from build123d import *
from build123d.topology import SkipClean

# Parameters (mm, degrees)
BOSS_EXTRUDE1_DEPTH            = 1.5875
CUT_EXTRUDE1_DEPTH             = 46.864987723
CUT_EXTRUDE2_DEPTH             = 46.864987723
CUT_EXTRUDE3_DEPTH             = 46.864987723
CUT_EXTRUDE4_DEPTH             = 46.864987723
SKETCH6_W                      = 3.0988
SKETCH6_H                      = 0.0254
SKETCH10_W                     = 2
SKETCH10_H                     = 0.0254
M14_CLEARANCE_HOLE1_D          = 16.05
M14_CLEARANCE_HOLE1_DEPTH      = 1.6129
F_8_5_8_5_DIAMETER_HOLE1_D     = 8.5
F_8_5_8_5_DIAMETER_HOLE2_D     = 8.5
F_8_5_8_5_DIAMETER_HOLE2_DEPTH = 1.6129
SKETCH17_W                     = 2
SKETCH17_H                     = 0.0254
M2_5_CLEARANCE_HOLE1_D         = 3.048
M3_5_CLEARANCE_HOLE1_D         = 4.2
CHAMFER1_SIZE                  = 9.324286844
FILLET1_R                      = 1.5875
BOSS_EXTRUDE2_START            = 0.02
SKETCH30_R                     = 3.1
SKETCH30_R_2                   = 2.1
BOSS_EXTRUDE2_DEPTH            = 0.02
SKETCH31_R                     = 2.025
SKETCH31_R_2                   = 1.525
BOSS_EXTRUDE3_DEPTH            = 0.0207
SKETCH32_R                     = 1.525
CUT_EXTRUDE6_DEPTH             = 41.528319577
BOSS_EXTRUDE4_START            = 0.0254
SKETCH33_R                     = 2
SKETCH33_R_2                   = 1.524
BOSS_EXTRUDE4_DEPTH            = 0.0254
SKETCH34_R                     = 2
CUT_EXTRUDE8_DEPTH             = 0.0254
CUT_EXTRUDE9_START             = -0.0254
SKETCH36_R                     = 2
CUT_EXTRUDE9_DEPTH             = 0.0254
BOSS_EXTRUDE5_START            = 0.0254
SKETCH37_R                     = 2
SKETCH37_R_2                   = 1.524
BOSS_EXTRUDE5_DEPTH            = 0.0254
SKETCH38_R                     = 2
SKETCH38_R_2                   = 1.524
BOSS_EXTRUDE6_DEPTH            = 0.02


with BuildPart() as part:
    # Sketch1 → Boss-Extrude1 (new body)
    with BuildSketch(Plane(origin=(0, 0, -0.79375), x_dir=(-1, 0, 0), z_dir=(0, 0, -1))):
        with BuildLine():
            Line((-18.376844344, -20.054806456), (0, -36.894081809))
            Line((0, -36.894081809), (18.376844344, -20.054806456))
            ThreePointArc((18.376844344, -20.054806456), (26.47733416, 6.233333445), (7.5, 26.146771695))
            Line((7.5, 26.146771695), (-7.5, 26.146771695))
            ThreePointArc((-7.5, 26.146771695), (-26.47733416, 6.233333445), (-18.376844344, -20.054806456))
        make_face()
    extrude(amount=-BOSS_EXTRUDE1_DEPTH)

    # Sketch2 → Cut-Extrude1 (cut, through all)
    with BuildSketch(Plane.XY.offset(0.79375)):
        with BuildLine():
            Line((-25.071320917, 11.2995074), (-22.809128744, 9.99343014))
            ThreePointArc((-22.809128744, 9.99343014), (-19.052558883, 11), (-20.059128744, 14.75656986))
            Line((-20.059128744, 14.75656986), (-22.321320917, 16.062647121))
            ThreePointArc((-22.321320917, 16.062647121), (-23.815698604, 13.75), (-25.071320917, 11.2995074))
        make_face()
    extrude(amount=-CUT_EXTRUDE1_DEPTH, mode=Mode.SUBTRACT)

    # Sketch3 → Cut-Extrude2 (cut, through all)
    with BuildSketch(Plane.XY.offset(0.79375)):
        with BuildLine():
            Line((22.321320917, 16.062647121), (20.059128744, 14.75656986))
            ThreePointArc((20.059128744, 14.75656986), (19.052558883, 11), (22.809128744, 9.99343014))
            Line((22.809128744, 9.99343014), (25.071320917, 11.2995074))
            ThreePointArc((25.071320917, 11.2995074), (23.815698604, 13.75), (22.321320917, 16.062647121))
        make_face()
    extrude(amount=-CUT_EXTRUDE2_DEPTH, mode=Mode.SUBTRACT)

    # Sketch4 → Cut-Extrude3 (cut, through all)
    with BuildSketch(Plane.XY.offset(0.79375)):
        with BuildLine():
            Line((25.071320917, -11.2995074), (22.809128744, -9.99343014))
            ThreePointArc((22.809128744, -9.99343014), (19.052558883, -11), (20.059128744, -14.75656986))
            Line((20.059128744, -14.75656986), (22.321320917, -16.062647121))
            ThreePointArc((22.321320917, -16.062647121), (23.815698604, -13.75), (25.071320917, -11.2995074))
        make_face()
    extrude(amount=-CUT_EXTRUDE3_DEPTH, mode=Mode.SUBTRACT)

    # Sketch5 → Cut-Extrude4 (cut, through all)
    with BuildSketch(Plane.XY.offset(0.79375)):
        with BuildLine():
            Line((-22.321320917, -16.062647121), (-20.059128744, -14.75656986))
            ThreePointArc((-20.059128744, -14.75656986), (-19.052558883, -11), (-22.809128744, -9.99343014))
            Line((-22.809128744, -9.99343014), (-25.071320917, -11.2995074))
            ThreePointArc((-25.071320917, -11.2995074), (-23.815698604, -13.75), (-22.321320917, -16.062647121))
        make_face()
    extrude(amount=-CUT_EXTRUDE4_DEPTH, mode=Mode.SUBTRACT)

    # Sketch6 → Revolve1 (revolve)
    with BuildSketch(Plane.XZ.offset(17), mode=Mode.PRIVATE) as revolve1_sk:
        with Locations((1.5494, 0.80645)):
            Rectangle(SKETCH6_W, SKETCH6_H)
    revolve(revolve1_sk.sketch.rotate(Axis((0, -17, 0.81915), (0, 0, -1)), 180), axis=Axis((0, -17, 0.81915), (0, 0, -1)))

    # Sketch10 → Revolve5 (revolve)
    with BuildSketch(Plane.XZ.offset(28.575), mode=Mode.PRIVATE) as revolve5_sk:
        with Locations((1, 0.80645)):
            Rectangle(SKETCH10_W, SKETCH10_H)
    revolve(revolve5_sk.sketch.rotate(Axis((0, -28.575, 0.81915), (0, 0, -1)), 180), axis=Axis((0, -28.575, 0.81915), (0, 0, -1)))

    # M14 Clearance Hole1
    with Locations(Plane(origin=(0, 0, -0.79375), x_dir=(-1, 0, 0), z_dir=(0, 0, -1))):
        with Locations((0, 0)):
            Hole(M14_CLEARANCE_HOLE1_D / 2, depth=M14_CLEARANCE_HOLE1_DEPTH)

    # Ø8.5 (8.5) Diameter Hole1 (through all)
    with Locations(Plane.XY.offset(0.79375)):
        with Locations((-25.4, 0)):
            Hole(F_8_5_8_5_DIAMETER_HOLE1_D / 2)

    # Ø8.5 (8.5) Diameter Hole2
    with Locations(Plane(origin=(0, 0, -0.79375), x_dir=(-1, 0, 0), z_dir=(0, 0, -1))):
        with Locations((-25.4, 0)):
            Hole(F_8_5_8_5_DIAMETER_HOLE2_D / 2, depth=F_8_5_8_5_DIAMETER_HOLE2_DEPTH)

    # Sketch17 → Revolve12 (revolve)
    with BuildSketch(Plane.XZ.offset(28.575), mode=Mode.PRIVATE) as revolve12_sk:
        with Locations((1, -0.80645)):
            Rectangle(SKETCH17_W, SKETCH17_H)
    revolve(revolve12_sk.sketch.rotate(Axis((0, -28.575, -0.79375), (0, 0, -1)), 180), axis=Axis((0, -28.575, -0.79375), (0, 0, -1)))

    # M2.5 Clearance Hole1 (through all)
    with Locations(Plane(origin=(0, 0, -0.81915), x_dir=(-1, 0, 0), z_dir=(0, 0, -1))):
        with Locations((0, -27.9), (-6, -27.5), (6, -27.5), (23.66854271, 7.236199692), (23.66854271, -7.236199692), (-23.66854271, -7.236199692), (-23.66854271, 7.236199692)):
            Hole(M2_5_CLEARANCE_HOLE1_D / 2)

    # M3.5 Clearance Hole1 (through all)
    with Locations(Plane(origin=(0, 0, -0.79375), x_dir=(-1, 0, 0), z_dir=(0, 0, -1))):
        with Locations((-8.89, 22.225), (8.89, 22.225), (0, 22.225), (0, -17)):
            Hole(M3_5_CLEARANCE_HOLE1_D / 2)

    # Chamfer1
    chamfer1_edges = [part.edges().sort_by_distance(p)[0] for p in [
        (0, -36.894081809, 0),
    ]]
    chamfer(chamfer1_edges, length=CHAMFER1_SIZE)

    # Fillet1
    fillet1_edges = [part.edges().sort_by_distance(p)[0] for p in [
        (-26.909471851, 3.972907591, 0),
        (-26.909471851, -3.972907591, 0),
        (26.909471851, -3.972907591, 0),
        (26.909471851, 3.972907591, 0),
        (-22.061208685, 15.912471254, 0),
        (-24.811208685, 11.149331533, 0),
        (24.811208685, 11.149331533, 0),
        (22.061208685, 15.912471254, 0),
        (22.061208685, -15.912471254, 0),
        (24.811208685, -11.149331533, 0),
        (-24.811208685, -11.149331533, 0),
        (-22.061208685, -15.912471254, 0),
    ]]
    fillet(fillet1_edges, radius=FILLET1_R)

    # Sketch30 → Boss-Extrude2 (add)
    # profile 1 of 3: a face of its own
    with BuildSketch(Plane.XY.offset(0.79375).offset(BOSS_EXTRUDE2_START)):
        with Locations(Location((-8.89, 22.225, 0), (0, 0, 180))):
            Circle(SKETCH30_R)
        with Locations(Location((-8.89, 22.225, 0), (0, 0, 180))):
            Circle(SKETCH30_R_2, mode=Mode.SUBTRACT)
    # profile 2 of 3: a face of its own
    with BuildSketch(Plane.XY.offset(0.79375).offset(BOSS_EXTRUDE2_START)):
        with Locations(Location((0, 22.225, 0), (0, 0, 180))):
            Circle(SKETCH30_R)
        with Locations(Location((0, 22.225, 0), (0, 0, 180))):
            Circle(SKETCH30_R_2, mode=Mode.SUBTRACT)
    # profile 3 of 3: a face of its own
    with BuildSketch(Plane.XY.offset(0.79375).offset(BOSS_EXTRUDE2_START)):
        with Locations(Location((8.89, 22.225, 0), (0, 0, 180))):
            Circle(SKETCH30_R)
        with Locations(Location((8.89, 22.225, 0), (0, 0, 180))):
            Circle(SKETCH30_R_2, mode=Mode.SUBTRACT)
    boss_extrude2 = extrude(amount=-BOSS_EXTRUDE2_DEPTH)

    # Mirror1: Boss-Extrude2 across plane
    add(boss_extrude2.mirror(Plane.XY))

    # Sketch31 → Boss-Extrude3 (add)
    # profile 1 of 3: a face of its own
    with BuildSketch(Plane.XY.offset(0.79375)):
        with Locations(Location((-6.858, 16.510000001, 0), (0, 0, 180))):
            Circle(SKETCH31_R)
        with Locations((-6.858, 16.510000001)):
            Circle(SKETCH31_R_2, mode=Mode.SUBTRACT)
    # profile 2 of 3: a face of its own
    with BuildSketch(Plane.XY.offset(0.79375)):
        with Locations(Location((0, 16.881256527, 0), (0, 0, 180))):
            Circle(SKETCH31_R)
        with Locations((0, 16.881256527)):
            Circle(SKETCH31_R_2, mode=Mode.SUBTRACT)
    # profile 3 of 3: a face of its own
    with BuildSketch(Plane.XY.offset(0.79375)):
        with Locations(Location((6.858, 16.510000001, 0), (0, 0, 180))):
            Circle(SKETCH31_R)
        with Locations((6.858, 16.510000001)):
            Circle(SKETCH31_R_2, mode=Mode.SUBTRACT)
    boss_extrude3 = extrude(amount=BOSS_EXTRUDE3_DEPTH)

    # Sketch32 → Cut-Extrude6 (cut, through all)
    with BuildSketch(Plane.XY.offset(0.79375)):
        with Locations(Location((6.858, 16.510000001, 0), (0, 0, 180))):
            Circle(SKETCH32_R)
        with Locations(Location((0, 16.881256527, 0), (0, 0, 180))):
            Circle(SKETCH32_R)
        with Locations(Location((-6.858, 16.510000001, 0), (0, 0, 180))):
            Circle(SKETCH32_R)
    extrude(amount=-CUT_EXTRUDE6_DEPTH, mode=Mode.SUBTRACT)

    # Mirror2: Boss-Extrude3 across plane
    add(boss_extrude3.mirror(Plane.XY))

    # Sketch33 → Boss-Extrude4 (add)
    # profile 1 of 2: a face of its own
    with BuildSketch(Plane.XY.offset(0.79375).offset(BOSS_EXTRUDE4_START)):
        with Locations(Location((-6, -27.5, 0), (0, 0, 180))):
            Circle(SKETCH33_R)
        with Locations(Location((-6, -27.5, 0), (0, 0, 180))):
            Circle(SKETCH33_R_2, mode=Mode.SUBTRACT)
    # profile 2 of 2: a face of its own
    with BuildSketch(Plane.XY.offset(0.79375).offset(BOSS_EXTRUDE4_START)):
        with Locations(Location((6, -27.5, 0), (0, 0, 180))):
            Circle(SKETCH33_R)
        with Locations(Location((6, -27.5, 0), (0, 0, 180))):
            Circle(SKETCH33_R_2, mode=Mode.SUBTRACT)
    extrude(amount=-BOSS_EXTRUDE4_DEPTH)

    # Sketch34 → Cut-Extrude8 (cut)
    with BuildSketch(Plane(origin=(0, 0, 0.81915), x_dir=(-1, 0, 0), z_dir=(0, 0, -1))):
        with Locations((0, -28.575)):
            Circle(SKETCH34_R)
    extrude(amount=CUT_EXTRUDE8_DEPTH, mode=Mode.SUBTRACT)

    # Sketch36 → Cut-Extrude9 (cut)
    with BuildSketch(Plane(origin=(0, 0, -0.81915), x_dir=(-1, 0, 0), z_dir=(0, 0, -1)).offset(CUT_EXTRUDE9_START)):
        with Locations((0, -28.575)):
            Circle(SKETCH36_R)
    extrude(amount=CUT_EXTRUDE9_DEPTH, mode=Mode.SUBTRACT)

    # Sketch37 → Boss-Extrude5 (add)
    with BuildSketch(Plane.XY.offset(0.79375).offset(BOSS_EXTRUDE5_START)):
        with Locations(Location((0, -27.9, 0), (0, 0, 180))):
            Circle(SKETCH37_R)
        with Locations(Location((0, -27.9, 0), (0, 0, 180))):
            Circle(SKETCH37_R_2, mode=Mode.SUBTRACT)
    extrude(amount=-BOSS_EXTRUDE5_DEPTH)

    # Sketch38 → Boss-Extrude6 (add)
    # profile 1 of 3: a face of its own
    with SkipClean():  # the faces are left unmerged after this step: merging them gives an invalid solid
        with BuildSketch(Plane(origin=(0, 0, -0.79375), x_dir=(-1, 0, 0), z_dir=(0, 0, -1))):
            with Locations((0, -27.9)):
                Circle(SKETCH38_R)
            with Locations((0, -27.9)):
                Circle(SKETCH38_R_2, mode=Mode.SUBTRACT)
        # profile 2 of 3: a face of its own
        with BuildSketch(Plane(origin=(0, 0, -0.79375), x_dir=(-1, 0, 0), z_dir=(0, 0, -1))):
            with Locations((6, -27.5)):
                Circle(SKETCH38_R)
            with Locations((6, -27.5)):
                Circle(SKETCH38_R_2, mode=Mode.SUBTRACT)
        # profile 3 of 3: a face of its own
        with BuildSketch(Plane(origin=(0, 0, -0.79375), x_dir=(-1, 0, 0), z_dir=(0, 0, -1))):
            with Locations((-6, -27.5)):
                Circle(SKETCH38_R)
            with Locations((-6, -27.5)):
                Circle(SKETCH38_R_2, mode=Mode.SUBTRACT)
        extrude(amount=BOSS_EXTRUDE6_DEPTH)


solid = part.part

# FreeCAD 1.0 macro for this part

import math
import FreeCAD as App
import Part
import Sketcher
from FreeCAD import Vector
Q = App.Units.Quantity


def edges_at(feature, points):
    """Names of the edges that pass closest to the given points."""
    edges = feature.Shape.Edges
    near = lambda p: min(range(len(edges)), key=lambda i: edges[i].distToShape(Part.Vertex(*p))[0])
    return sorted({f"Edge{near(p) + 1}" for p in points})


def add_polygon(sketch, points):
    """Adds a closed chain of lines whose ends are joined by coincident constraints."""
    first, n = sketch.GeometryCount, len(points)
    for a, b in zip(points, points[1:] + points[:1]):
        sketch.addGeometry(Part.LineSegment(App.Vector(*a, 0), App.Vector(*b, 0)), False)
    for i in range(n):
        sketch.addConstraint(Sketcher.Constraint("Coincident", first + i, 2, first + (i + 1) % n, 1))

doc = App.newDocument("Part")
body = doc.addObject("PartDesign::Body", "Body")

# Sketch on XY plane
sketch1 = body.newObject("Sketcher::SketchObject", "Sketch")
sketch1.AttachmentSupport = (doc.getObject("XY_Plane"), [""])
sketch1.MapMode = "FlatFace"
sketch1.AttachmentOffset = App.Placement(Vector(0, 0, -0.79375), App.Rotation())
sketch1.addGeometry(Part.LineSegment(Vector(18, -20, 0), Vector(0, -37, 0)), False)
sketch1.addGeometry(Part.LineSegment(Vector(0, -37, 0), Vector(-18, -20, 0)), False)
sketch1.addGeometry(Part.ArcOfCircle(Part.Circle(Vector(0, 0, 0), Vector(0, 0, 1), 27), math.radians(106), math.radians(228)), False)
sketch1.addGeometry(Part.LineSegment(Vector(-8, 26, 0), Vector(8, 26, 0)), False)
sketch1.addGeometry(Part.ArcOfCircle(Part.Circle(Vector(0, 0, 0), Vector(0, 0, 1), 27), math.radians(-48), math.radians(74)), False)
sketch1.addConstraint(Sketcher.Constraint("Coincident", 0, 2, 1, 1))
sketch1.addConstraint(Sketcher.Constraint("Tangent", 1, 2, 2, 2))
sketch1.addConstraint(Sketcher.Constraint("Coincident", 2, 1, 3, 1))
sketch1.addConstraint(Sketcher.Constraint("Coincident", 3, 2, 4, 2))
sketch1.addConstraint(Sketcher.Constraint("Tangent", 4, 1, 0, 1))
sketch1.addConstraint(Sketcher.Constraint("Horizontal", 3))
sketch1.addConstraint(Sketcher.Constraint("Coincident", 2, 3, -1, 1))
sketch1.addConstraint(Sketcher.Constraint("Coincident", 4, 3, -1, 1))
sketch1.addConstraint(Sketcher.Constraint("Equal", 2, 4))
sketch1.addConstraint(Sketcher.Constraint("PointOnObject", 0, 2, -2))
sketch1.addConstraint(Sketcher.Constraint("DistanceX", 3, 1, 3, 2, 15.0))
sketch1.addConstraint(Sketcher.Constraint("Angle", 0, Q("-137.5 deg")))
sketch1.addConstraint(Sketcher.Constraint("Radius", 2, 27.20117))
pad1 = body.newObject("PartDesign::Pad", "Pad")
pad1.Profile = sketch1
pad1.Length = 1.5875

# Sketch on XY plane
sketch2 = body.newObject("Sketcher::SketchObject", "Sketch001")
sketch2.AttachmentSupport = (doc.getObject("XY_Plane"), [""])
sketch2.MapMode = "FlatFace"
sketch2.AttachmentOffset = App.Placement(Vector(0, 0, 0.79375), App.Rotation())
sketch2.addGeometry(Part.LineSegment(Vector(-25.1, 11.3, 0), Vector(-22.8, 10, 0)), False)
sketch2.addGeometry(Part.ArcOfCircle(Part.Circle(Vector(-21.4, 12.4, 0), Vector(0, 0, 1), 2.8), math.radians(-120), math.radians(60)), False)
sketch2.addGeometry(Part.LineSegment(Vector(-20.1, 14.8, 0), Vector(-22.3, 16.1, 0)), False)
sketch2.addGeometry(Part.ArcOfCircle(Part.Circle(Vector(0, 0, 0), Vector(0, 0, 1), 27.5), math.radians(144.26), math.radians(155.74)), False)
sketch2.addConstraint(Sketcher.Constraint("Tangent", 0, 2, 1, 1))
sketch2.addConstraint(Sketcher.Constraint("Tangent", 1, 2, 2, 1))
sketch2.addConstraint(Sketcher.Constraint("Coincident", 2, 2, 3, 1))
sketch2.addConstraint(Sketcher.Constraint("Coincident", 3, 2, 0, 1))
sketch2.addConstraint(Sketcher.Constraint("Coincident", 3, 3, -1, 1))
sketch2.addConstraint(Sketcher.Constraint("Parallel", 0, 2))
sketch2.addConstraint(Sketcher.Constraint("Equal", 0, 2))
sketch2.addConstraint(Sketcher.Constraint("Radius", 3, 27.5))
sketch2.addConstraint(Sketcher.Constraint("Angle", 0, Q("-30 deg")))
sketch2.addConstraint(Sketcher.Constraint("Radius", 1, 2.75))
sketch2.addConstraint(Sketcher.Constraint("DistanceY", -1, 1, 1, 3, 12.375))
pocket1 = body.newObject("PartDesign::Pocket", "Pocket")
pocket1.Profile = sketch2
pocket1.Type = "ThroughAll"

# Sketch on XY plane
sketch3 = body.newObject("Sketcher::SketchObject", "Sketch002")
sketch3.AttachmentSupport = (doc.getObject("XY_Plane"), [""])
sketch3.MapMode = "FlatFace"
sketch3.AttachmentOffset = App.Placement(Vector(0, 0, 0.79375), App.Rotation())
sketch3.addGeometry(Part.LineSegment(Vector(22.3, 16.1, 0), Vector(20.1, 14.8, 0)), False)
sketch3.addGeometry(Part.ArcOfCircle(Part.Circle(Vector(21.4, 12.4, 0), Vector(0, 0, 1), 2.8), math.radians(120), math.radians(300)), False)
sketch3.addGeometry(Part.LineSegment(Vector(22.8, 10, 0), Vector(25.1, 11.3, 0)), False)
sketch3.addGeometry(Part.ArcOfCircle(Part.Circle(Vector(0, 0, 0), Vector(0, 0, 1), 27.5), math.radians(24.26), math.radians(35.74)), False)
sketch3.addConstraint(Sketcher.Constraint("Tangent", 0, 2, 1, 1))
sketch3.addConstraint(Sketcher.Constraint("Tangent", 1, 2, 2, 1))
sketch3.addConstraint(Sketcher.Constraint("Coincident", 2, 2, 3, 1))
sketch3.addConstraint(Sketcher.Constraint("Coincident", 3, 2, 0, 1))
sketch3.addConstraint(Sketcher.Constraint("Coincident", 3, 3, -1, 1))
sketch3.addConstraint(Sketcher.Constraint("Parallel", 0, 2))
sketch3.addConstraint(Sketcher.Constraint("Equal", 0, 2))
sketch3.addConstraint(Sketcher.Constraint("Radius", 3, 27.5))
sketch3.addConstraint(Sketcher.Constraint("Angle", 0, Q("-150 deg")))
sketch3.addConstraint(Sketcher.Constraint("Radius", 1, 2.75))
sketch3.addConstraint(Sketcher.Constraint("DistanceY", -1, 1, 1, 3, 12.375))
pocket2 = body.newObject("PartDesign::Pocket", "Pocket001")
pocket2.Profile = sketch3
pocket2.Type = "ThroughAll"

# Sketch on XY plane
sketch4 = body.newObject("Sketcher::SketchObject", "Sketch003")
sketch4.AttachmentSupport = (doc.getObject("XY_Plane"), [""])
sketch4.MapMode = "FlatFace"
sketch4.AttachmentOffset = App.Placement(Vector(0, 0, 0.79375), App.Rotation())
sketch4.addGeometry(Part.LineSegment(Vector(25.1, -11.3, 0), Vector(22.8, -10, 0)), False)
sketch4.addGeometry(Part.ArcOfCircle(Part.Circle(Vector(21.4, -12.4, 0), Vector(0, 0, 1), 2.8), math.radians(60), math.radians(240)), False)
sketch4.addGeometry(Part.LineSegment(Vector(20.1, -14.8, 0), Vector(22.3, -16.1, 0)), False)
sketch4.addGeometry(Part.ArcOfCircle(Part.Circle(Vector(0, 0, 0), Vector(0, 0, 1), 27.5), math.radians(-35.74), math.radians(-24.26)), False)
sketch4.addConstraint(Sketcher.Constraint("Tangent", 0, 2, 1, 1))
sketch4.addConstraint(Sketcher.Constraint("Tangent", 1, 2, 2, 1))
sketch4.addConstraint(Sketcher.Constraint("Coincident", 2, 2, 3, 1))
sketch4.addConstraint(Sketcher.Constraint("Coincident", 3, 2, 0, 1))
sketch4.addConstraint(Sketcher.Constraint("Coincident", 3, 3, -1, 1))
sketch4.addConstraint(Sketcher.Constraint("Parallel", 0, 2))
sketch4.addConstraint(Sketcher.Constraint("Equal", 0, 2))
sketch4.addConstraint(Sketcher.Constraint("Radius", 3, 27.5))
sketch4.addConstraint(Sketcher.Constraint("Angle", 0, Q("150 deg")))
sketch4.addConstraint(Sketcher.Constraint("Radius", 1, 2.75))
sketch4.addConstraint(Sketcher.Constraint("DistanceY", 1, 3, -1, 1, 12.375))
pocket3 = body.newObject("PartDesign::Pocket", "Pocket002")
pocket3.Profile = sketch4
pocket3.Type = "ThroughAll"

# Sketch on XY plane
sketch5 = body.newObject("Sketcher::SketchObject", "Sketch004")
sketch5.AttachmentSupport = (doc.getObject("XY_Plane"), [""])
sketch5.MapMode = "FlatFace"
sketch5.AttachmentOffset = App.Placement(Vector(0, 0, 0.79375), App.Rotation())
sketch5.addGeometry(Part.LineSegment(Vector(-22.3, -16.1, 0), Vector(-20.1, -14.8, 0)), False)
sketch5.addGeometry(Part.ArcOfCircle(Part.Circle(Vector(-21.4, -12.4, 0), Vector(0, 0, 1), 2.8), math.radians(-60), math.radians(120)), False)
sketch5.addGeometry(Part.LineSegment(Vector(-22.8, -10, 0), Vector(-25.1, -11.3, 0)), False)
sketch5.addGeometry(Part.ArcOfCircle(Part.Circle(Vector(0, 0, 0), Vector(0, 0, 1), 27.5), math.radians(-155.74), math.radians(-144.26)), False)
sketch5.addConstraint(Sketcher.Constraint("Tangent", 0, 2, 1, 1))
sketch5.addConstraint(Sketcher.Constraint("Tangent", 1, 2, 2, 1))
sketch5.addConstraint(Sketcher.Constraint("Coincident", 2, 2, 3, 1))
sketch5.addConstraint(Sketcher.Constraint("Coincident", 3, 2, 0, 1))
sketch5.addConstraint(Sketcher.Constraint("Coincident", 3, 3, -1, 1))
sketch5.addConstraint(Sketcher.Constraint("Parallel", 0, 2))
sketch5.addConstraint(Sketcher.Constraint("Equal", 0, 2))
sketch5.addConstraint(Sketcher.Constraint("Radius", 3, 27.5))
sketch5.addConstraint(Sketcher.Constraint("Angle", 0, Q("30 deg")))
sketch5.addConstraint(Sketcher.Constraint("Radius", 1, 2.75))
sketch5.addConstraint(Sketcher.Constraint("DistanceY", 1, 3, -1, 1, 12.375))
pocket4 = body.newObject("PartDesign::Pocket", "Pocket003")
pocket4.Profile = sketch5
pocket4.Type = "ThroughAll"

# Sketch on XZ plane
sketch6 = body.newObject("Sketcher::SketchObject", "Sketch005")
sketch6.AttachmentSupport = (doc.getObject("XZ_Plane"), [""])
sketch6.MapMode = "FlatFace"
sketch6.AttachmentOffset = App.Placement(Vector(0, 0, 17), App.Rotation())
add_polygon(sketch6, [(0, 0.819), (0, 0.794), (3.099, 0.794), (3.099, 0.819)])  # lines 0-3
sketch6.addConstraint(Sketcher.Constraint("Vertical", 0))
sketch6.addConstraint(Sketcher.Constraint("Horizontal", 1))
sketch6.addConstraint(Sketcher.Constraint("Vertical", 2))
sketch6.addConstraint(Sketcher.Constraint("Horizontal", 3))
sketch6.addConstraint(Sketcher.Constraint("PointOnObject", 0, 2, -2))
sketch6.addConstraint(Sketcher.Constraint("DistanceX", 1, 1, 1, 2, 3.0988))
sketch6.addConstraint(Sketcher.Constraint("DistanceY", 0, 2, 0, 1, 0.0254))
sketch6.addConstraint(Sketcher.Constraint("DistanceY", -1, 1, 0, 2, 0.79375))
revolution = body.newObject("PartDesign::Revolution", "Revolution")
revolution.Profile = sketch6
revolution.ReferenceAxis = (sketch6, ["V_Axis"])
revolution.Angle = 360

# Sketch on XZ plane
sketch7 = body.newObject("Sketcher::SketchObject", "Sketch006")
sketch7.AttachmentSupport = (doc.getObject("XZ_Plane"), [""])
sketch7.MapMode = "FlatFace"
sketch7.AttachmentOffset = App.Placement(Vector(0, 0, 28.575), App.Rotation())
add_polygon(sketch7, [(0, 0.819), (0, 0.794), (2, 0.794), (2, 0.819)])  # lines 0-3
sketch7.addConstraint(Sketcher.Constraint("Vertical", 0))
sketch7.addConstraint(Sketcher.Constraint("Horizontal", 1))
sketch7.addConstraint(Sketcher.Constraint("Vertical", 2))
sketch7.addConstraint(Sketcher.Constraint("Horizontal", 3))
sketch7.addConstraint(Sketcher.Constraint("PointOnObject", 0, 2, -2))
sketch7.addConstraint(Sketcher.Constraint("DistanceX", 1, 1, 1, 2, 2.0))
sketch7.addConstraint(Sketcher.Constraint("DistanceY", 0, 2, 0, 1, 0.0254))
sketch7.addConstraint(Sketcher.Constraint("DistanceY", -1, 1, 0, 2, 0.79375))
revolution2 = body.newObject("PartDesign::Revolution", "Revolution001")
revolution2.Profile = sketch7
revolution2.ReferenceAxis = (sketch7, ["V_Axis"])
revolution2.Angle = 360

# Sketch on XY plane
sketch8 = body.newObject("Sketcher::SketchObject", "Sketch007")
sketch8.AttachmentSupport = (doc.getObject("XY_Plane"), [""])
sketch8.MapMode = "FlatFace"
sketch8.AttachmentOffset = App.Placement(Vector(0, 0, -0.79375), App.Rotation())
sketch8.addGeometry(Part.Circle(Vector(0, 0, 0), Vector(0, 0, 1), 8), False)
sketch8.addConstraint(Sketcher.Constraint("Coincident", 0, 3, -1, 1))
sketch8.addConstraint(Sketcher.Constraint("Diameter", 0, 16.05))
doc.recompute()
hole = body.newObject("PartDesign::Hole", "Hole")
hole.Profile = sketch8
hole.ThreadType = "None"
hole.Diameter = 16.05
hole.DepthType = "Dimension"
hole.Depth = 1.6129
hole.DrillPoint = "Flat"
hole.Reversed = True

# Sketch on XY plane
sketch9 = body.newObject("Sketcher::SketchObject", "Sketch008")
sketch9.AttachmentSupport = (doc.getObject("XY_Plane"), [""])
sketch9.MapMode = "FlatFace"
sketch9.AttachmentOffset = App.Placement(Vector(0, 0, 0.79375), App.Rotation())
sketch9.addGeometry(Part.Circle(Vector(-25.4, 0, 0), Vector(0, 0, 1), 4.2), False)
sketch9.addConstraint(Sketcher.Constraint("PointOnObject", 0, 3, -1))
sketch9.addConstraint(Sketcher.Constraint("Diameter", 0, 8.5))
sketch9.addConstraint(Sketcher.Constraint("DistanceX", 0, 3, -1, 1, 25.4))
doc.recompute()
hole2 = body.newObject("PartDesign::Hole", "Hole001")
hole2.Profile = sketch9
hole2.ThreadType = "None"
hole2.Diameter = 8.5
hole2.DepthType = "ThroughAll"

# Sketch on XY plane
sketch10 = body.newObject("Sketcher::SketchObject", "Sketch009")
sketch10.AttachmentSupport = (doc.getObject("XY_Plane"), [""])
sketch10.MapMode = "FlatFace"
sketch10.AttachmentOffset = App.Placement(Vector(0, 0, -0.79375), App.Rotation())
sketch10.addGeometry(Part.Circle(Vector(25.4, 0, 0), Vector(0, 0, 1), 4.2), False)
sketch10.addConstraint(Sketcher.Constraint("PointOnObject", 0, 3, -1))
sketch10.addConstraint(Sketcher.Constraint("Diameter", 0, 8.5))
sketch10.addConstraint(Sketcher.Constraint("DistanceX", -1, 1, 0, 3, 25.4))
doc.recompute()
hole3 = body.newObject("PartDesign::Hole", "Hole002")
hole3.Profile = sketch10
hole3.ThreadType = "None"
hole3.Diameter = 8.5
hole3.DepthType = "Dimension"
hole3.Depth = 1.6129
hole3.DrillPoint = "Flat"
hole3.Reversed = True

# Sketch on XZ plane
sketch11 = body.newObject("Sketcher::SketchObject", "Sketch010")
sketch11.AttachmentSupport = (doc.getObject("XZ_Plane"), [""])
sketch11.MapMode = "FlatFace"
sketch11.AttachmentOffset = App.Placement(Vector(0, 0, 28.575), App.Rotation())
add_polygon(sketch11, [(0, -0.794), (0, -0.819), (2, -0.819), (2, -0.794)])  # lines 0-3
sketch11.addConstraint(Sketcher.Constraint("Vertical", 0))
sketch11.addConstraint(Sketcher.Constraint("Horizontal", 1))
sketch11.addConstraint(Sketcher.Constraint("Vertical", 2))
sketch11.addConstraint(Sketcher.Constraint("Horizontal", 3))
sketch11.addConstraint(Sketcher.Constraint("PointOnObject", 0, 2, -2))
sketch11.addConstraint(Sketcher.Constraint("DistanceX", 1, 1, 1, 2, 2.0))
sketch11.addConstraint(Sketcher.Constraint("DistanceY", 0, 2, 0, 1, 0.0254))
sketch11.addConstraint(Sketcher.Constraint("DistanceY", 0, 2, -1, 1, 0.81915))
revolution3 = body.newObject("PartDesign::Revolution", "Revolution002")
revolution3.Profile = sketch11
revolution3.ReferenceAxis = (sketch11, ["V_Axis"])
revolution3.Angle = 360

# Sketch on XY plane
sketch12 = body.newObject("Sketcher::SketchObject", "Sketch011")
sketch12.AttachmentSupport = (doc.getObject("XY_Plane"), [""])
sketch12.MapMode = "FlatFace"
sketch12.AttachmentOffset = App.Placement(Vector(0, 0, -0.81915), App.Rotation())
sketch12.addGeometry(Part.Circle(Vector(0, -27.9, 0), Vector(0, 0, 1), 1.5), False)
sketch12.addGeometry(Part.Circle(Vector(6, -27.5, 0), Vector(0, 0, 1), 1.5), False)
sketch12.addGeometry(Part.Circle(Vector(-6, -27.5, 0), Vector(0, 0, 1), 1.5), False)
sketch12.addGeometry(Part.Circle(Vector(-23.7, 7.2, 0), Vector(0, 0, 1), 1.5), False)
sketch12.addGeometry(Part.Circle(Vector(-23.7, -7.2, 0), Vector(0, 0, 1), 1.5), False)
sketch12.addGeometry(Part.Circle(Vector(23.7, -7.2, 0), Vector(0, 0, 1), 1.5), False)
sketch12.addGeometry(Part.Circle(Vector(23.7, 7.2, 0), Vector(0, 0, 1), 1.5), False)
sketch12.addConstraint(Sketcher.Constraint("Equal", 0, 1))
sketch12.addConstraint(Sketcher.Constraint("Equal", 1, 2))
sketch12.addConstraint(Sketcher.Constraint("Equal", 2, 3))
sketch12.addConstraint(Sketcher.Constraint("Equal", 3, 4))
sketch12.addConstraint(Sketcher.Constraint("Equal", 4, 5))
sketch12.addConstraint(Sketcher.Constraint("Equal", 5, 6))
sketch12.addConstraint(Sketcher.Constraint("Symmetric", 3, 3, 5, 3, -1, 1))
sketch12.addConstraint(Sketcher.Constraint("Symmetric", 4, 3, 6, 3, -1, 1))
sketch12.addConstraint(Sketcher.Constraint("Symmetric", 1, 3, 2, 3, -2))
sketch12.addConstraint(Sketcher.Constraint("Symmetric", 4, 3, 5, 3, -2))
sketch12.addConstraint(Sketcher.Constraint("PointOnObject", 0, 3, -2))
sketch12.addConstraint(Sketcher.Constraint("Diameter", 0, 3.048))
sketch12.addConstraint(Sketcher.Constraint("DistanceX", -1, 1, 1, 3, 6.0))
sketch12.addConstraint(Sketcher.Constraint("DistanceY", 0, 3, -1, 1, 27.9))
sketch12.addConstraint(Sketcher.Constraint("DistanceY", 1, 3, -1, 1, 27.5))
sketch12.addConstraint(Sketcher.Constraint("DistanceY", -1, 1, 3, 3, 7.2362))
sketch12.addConstraint(Sketcher.Constraint("DistanceX", 3, 3, -1, 1, 23.668543))
doc.recompute()
hole4 = body.newObject("PartDesign::Hole", "Hole003")
hole4.Profile = sketch12
hole4.ThreadType = "None"
hole4.Diameter = 3.048
hole4.DepthType = "ThroughAll"
hole4.Reversed = True

# Sketch on XY plane
sketch13 = body.newObject("Sketcher::SketchObject", "Sketch012")
sketch13.AttachmentSupport = (doc.getObject("XY_Plane"), [""])
sketch13.MapMode = "FlatFace"
sketch13.AttachmentOffset = App.Placement(Vector(0, 0, -0.79375), App.Rotation())
sketch13.addGeometry(Part.Circle(Vector(8.9, 22.2, 0), Vector(0, 0, 1), 2.1), False)
sketch13.addGeometry(Part.Circle(Vector(-8.9, 22.2, 0), Vector(0, 0, 1), 2.1), False)
sketch13.addGeometry(Part.Circle(Vector(0, 22.2, 0), Vector(0, 0, 1), 2.1), False)
sketch13.addGeometry(Part.Circle(Vector(0, -17, 0), Vector(0, 0, 1), 2.1), False)
sketch13.addConstraint(Sketcher.Constraint("Equal", 0, 1))
sketch13.addConstraint(Sketcher.Constraint("Equal", 1, 2))
sketch13.addConstraint(Sketcher.Constraint("Equal", 2, 3))
sketch13.addConstraint(Sketcher.Constraint("Symmetric", 0, 3, 1, 3, -2))
sketch13.addConstraint(Sketcher.Constraint("PointOnObject", 2, 3, -2))
sketch13.addConstraint(Sketcher.Constraint("PointOnObject", 3, 3, -2))
sketch13.addConstraint(Sketcher.Constraint("Horizontal", 1, 3, 2, 3))
sketch13.addConstraint(Sketcher.Constraint("Diameter", 0, 4.2))
sketch13.addConstraint(Sketcher.Constraint("DistanceY", 3, 3, -1, 1, 17.0))
sketch13.addConstraint(Sketcher.Constraint("DistanceX", -1, 1, 0, 3, 8.89))
sketch13.addConstraint(Sketcher.Constraint("DistanceY", -1, 1, 0, 3, 22.225))
doc.recompute()
hole5 = body.newObject("PartDesign::Hole", "Hole004")
hole5.Profile = sketch13
hole5.ThreadType = "None"
hole5.Diameter = 4.2
hole5.DepthType = "ThroughAll"
hole5.Reversed = True
doc.recompute()

chamfer = body.newObject("PartDesign::Chamfer", "Chamfer")
chamfer.Base = (hole5, edges_at(hole5, [(0, -36.894, 0)]))
chamfer.Size = 9.324287
doc.recompute()

fillet = body.newObject("PartDesign::Fillet", "Fillet")
fillet.Base = (chamfer, edges_at(chamfer, [
    (-26.909, 3.973, 0),
    (-26.909, -3.973, 0),
    (26.909, -3.973, 0),
    (26.909, 3.973, 0),
    (-22.061, 15.912, 0),
    (-24.811, 11.149, 0),
    (24.811, 11.149, 0),
    (22.061, 15.912, 0),
    (22.061, -15.912, 0),
    (24.811, -11.149, 0),
    (-24.811, -11.149, 0),
    (-22.061, -15.912, 0),
]))
fillet.Radius = 1.5875

# Sketch on XY plane
sketch14 = body.newObject("Sketcher::SketchObject", "Sketch013")
sketch14.AttachmentSupport = (doc.getObject("XY_Plane"), [""])
sketch14.MapMode = "FlatFace"
sketch14.AttachmentOffset = App.Placement(Vector(0, 0, 0.81375), App.Rotation())
sketch14.addGeometry(Part.Circle(Vector(-8.9, 22.2, 0), Vector(0, 0, 1), 3.1), False)
sketch14.addGeometry(Part.Circle(Vector(-8.9, 22.2, 0), Vector(0, 0, 1), 2.1), False)
sketch14.addGeometry(Part.Circle(Vector(0, 22.2, 0), Vector(0, 0, 1), 3.1), False)
sketch14.addGeometry(Part.Circle(Vector(0, 22.2, 0), Vector(0, 0, 1), 2.1), False)
sketch14.addGeometry(Part.Circle(Vector(8.9, 22.2, 0), Vector(0, 0, 1), 3.1), False)
sketch14.addGeometry(Part.Circle(Vector(8.9, 22.2, 0), Vector(0, 0, 1), 2.1), False)
sketch14.addConstraint(Sketcher.Constraint("Coincident", 1, 3, 0, 3))
sketch14.addConstraint(Sketcher.Constraint("Coincident", 3, 3, 2, 3))
sketch14.addConstraint(Sketcher.Constraint("Coincident", 5, 3, 4, 3))
sketch14.addConstraint(Sketcher.Constraint("Equal", 0, 2))
sketch14.addConstraint(Sketcher.Constraint("Equal", 1, 3))
sketch14.addConstraint(Sketcher.Constraint("Equal", 2, 4))
sketch14.addConstraint(Sketcher.Constraint("Equal", 3, 5))
sketch14.addConstraint(Sketcher.Constraint("Symmetric", 0, 3, 4, 3, -2))
sketch14.addConstraint(Sketcher.Constraint("PointOnObject", 2, 3, -2))
sketch14.addConstraint(Sketcher.Constraint("Horizontal", 1, 3, 2, 3))
sketch14.addConstraint(Sketcher.Constraint("Diameter", 0, 6.2))
sketch14.addConstraint(Sketcher.Constraint("Diameter", 1, 4.2))
sketch14.addConstraint(Sketcher.Constraint("DistanceX", 0, 3, -1, 1, 8.89))
sketch14.addConstraint(Sketcher.Constraint("DistanceY", -1, 1, 0, 3, 22.225))
pad2 = body.newObject("PartDesign::Pad", "Pad001")
pad2.Profile = sketch14
pad2.Length = 0.02
pad2.Reversed = True
doc.recompute()

mirrored = body.newObject("PartDesign::Mirrored", "Mirrored")
mirrored.Originals = [pad2]
mirrored.MirrorPlane = (doc.getObject("XY_Plane"), [""])
body.Tip = mirrored

# Sketch on XY plane
sketch15 = body.newObject("Sketcher::SketchObject", "Sketch014")
sketch15.AttachmentSupport = (doc.getObject("XY_Plane"), [""])
sketch15.MapMode = "FlatFace"
sketch15.AttachmentOffset = App.Placement(Vector(0, 0, 0.79375), App.Rotation())
sketch15.addGeometry(Part.Circle(Vector(-6.9, 16.5, 0), Vector(0, 0, 1), 2), False)
sketch15.addGeometry(Part.Circle(Vector(-6.9, 16.5, 0), Vector(0, 0, 1), 1.5), False)
sketch15.addGeometry(Part.Circle(Vector(0, 16.9, 0), Vector(0, 0, 1), 2), False)
sketch15.addGeometry(Part.Circle(Vector(0, 16.9, 0), Vector(0, 0, 1), 1.5), False)
sketch15.addGeometry(Part.Circle(Vector(6.9, 16.5, 0), Vector(0, 0, 1), 2), False)
sketch15.addGeometry(Part.Circle(Vector(6.9, 16.5, 0), Vector(0, 0, 1), 1.5), False)
sketch15.addConstraint(Sketcher.Constraint("Coincident", 1, 3, 0, 3))
sketch15.addConstraint(Sketcher.Constraint("Coincident", 3, 3, 2, 3))
sketch15.addConstraint(Sketcher.Constraint("Coincident", 5, 3, 4, 3))
sketch15.addConstraint(Sketcher.Constraint("Equal", 0, 2))
sketch15.addConstraint(Sketcher.Constraint("Equal", 1, 3))
sketch15.addConstraint(Sketcher.Constraint("Equal", 2, 4))
sketch15.addConstraint(Sketcher.Constraint("Equal", 3, 5))
sketch15.addConstraint(Sketcher.Constraint("Symmetric", 0, 3, 4, 3, -2))
sketch15.addConstraint(Sketcher.Constraint("PointOnObject", 2, 3, -2))
sketch15.addConstraint(Sketcher.Constraint("Diameter", 0, 4.05))
sketch15.addConstraint(Sketcher.Constraint("Diameter", 1, 3.05))
sketch15.addConstraint(Sketcher.Constraint("DistanceY", -1, 1, 0, 3, 16.51))
sketch15.addConstraint(Sketcher.Constraint("DistanceX", 0, 3, -1, 1, 6.858))
sketch15.addConstraint(Sketcher.Constraint("DistanceY", -1, 1, 2, 3, 16.881257))
pad3 = body.newObject("PartDesign::Pad", "Pad002")
pad3.Profile = sketch15
pad3.Length = 0.0207

# Sketch on XY plane
sketch16 = body.newObject("Sketcher::SketchObject", "Sketch015")
sketch16.AttachmentSupport = (doc.getObject("XY_Plane"), [""])
sketch16.MapMode = "FlatFace"
sketch16.AttachmentOffset = App.Placement(Vector(0, 0, 0.79375), App.Rotation())
sketch16.addGeometry(Part.Circle(Vector(6.9, 16.5, 0), Vector(0, 0, 1), 1.5), False)
sketch16.addGeometry(Part.Circle(Vector(0, 16.9, 0), Vector(0, 0, 1), 1.5), False)
sketch16.addGeometry(Part.Circle(Vector(-6.9, 16.5, 0), Vector(0, 0, 1), 1.5), False)
sketch16.addConstraint(Sketcher.Constraint("Equal", 0, 1))
sketch16.addConstraint(Sketcher.Constraint("Equal", 1, 2))
sketch16.addConstraint(Sketcher.Constraint("Symmetric", 0, 3, 2, 3, -2))
sketch16.addConstraint(Sketcher.Constraint("PointOnObject", 1, 3, -2))
sketch16.addConstraint(Sketcher.Constraint("Diameter", 0, 3.05))
sketch16.addConstraint(Sketcher.Constraint("DistanceY", -1, 1, 0, 3, 16.51))
sketch16.addConstraint(Sketcher.Constraint("DistanceX", -1, 1, 0, 3, 6.858))
sketch16.addConstraint(Sketcher.Constraint("DistanceY", -1, 1, 1, 3, 16.881257))
pocket5 = body.newObject("PartDesign::Pocket", "Pocket004")
pocket5.Profile = sketch16
pocket5.Type = "ThroughAll"
doc.recompute()

mirrored2 = body.newObject("PartDesign::Mirrored", "Mirrored001")
mirrored2.Originals = [pad3]
mirrored2.MirrorPlane = (doc.getObject("XY_Plane"), [""])
body.Tip = mirrored2

# Sketch on XY plane
sketch17 = body.newObject("Sketcher::SketchObject", "Sketch016")
sketch17.AttachmentSupport = (doc.getObject("XY_Plane"), [""])
sketch17.MapMode = "FlatFace"
sketch17.AttachmentOffset = App.Placement(Vector(0, 0, 0.81915), App.Rotation())
sketch17.addGeometry(Part.Circle(Vector(-6, -27.5, 0), Vector(0, 0, 1), 2), False)
sketch17.addGeometry(Part.Circle(Vector(-6, -27.5, 0), Vector(0, 0, 1), 1.5), False)
sketch17.addGeometry(Part.Circle(Vector(6, -27.5, 0), Vector(0, 0, 1), 2), False)
sketch17.addGeometry(Part.Circle(Vector(6, -27.5, 0), Vector(0, 0, 1), 1.5), False)
sketch17.addConstraint(Sketcher.Constraint("Coincident", 1, 3, 0, 3))
sketch17.addConstraint(Sketcher.Constraint("Coincident", 3, 3, 2, 3))
sketch17.addConstraint(Sketcher.Constraint("Equal", 0, 2))
sketch17.addConstraint(Sketcher.Constraint("Equal", 1, 3))
sketch17.addConstraint(Sketcher.Constraint("Symmetric", 0, 3, 2, 3, -2))
sketch17.addConstraint(Sketcher.Constraint("Diameter", 0, 4.0))
sketch17.addConstraint(Sketcher.Constraint("Diameter", 1, 3.048))
sketch17.addConstraint(Sketcher.Constraint("DistanceX", 0, 3, -1, 1, 6.0))
sketch17.addConstraint(Sketcher.Constraint("DistanceY", 0, 3, -1, 1, 27.5))
pad4 = body.newObject("PartDesign::Pad", "Pad003")
pad4.Profile = sketch17
pad4.Length = 0.0254
pad4.Reversed = True

# Sketch on XY plane
sketch18 = body.newObject("Sketcher::SketchObject", "Sketch017")
sketch18.AttachmentSupport = (doc.getObject("XY_Plane"), [""])
sketch18.MapMode = "FlatFace"
sketch18.AttachmentOffset = App.Placement(Vector(0, 0, 0.81915), App.Rotation())
sketch18.addGeometry(Part.Circle(Vector(0, -28.6, 0), Vector(0, 0, 1), 2), False)
sketch18.addConstraint(Sketcher.Constraint("PointOnObject", 0, 3, -2))
sketch18.addConstraint(Sketcher.Constraint("Diameter", 0, 4.0))
sketch18.addConstraint(Sketcher.Constraint("DistanceY", 0, 3, -1, 1, 28.575))
pocket6 = body.newObject("PartDesign::Pocket", "Pocket005")
pocket6.Profile = sketch18
pocket6.Length = 0.0254

# Sketch on XY plane
sketch19 = body.newObject("Sketcher::SketchObject", "Sketch018")
sketch19.AttachmentSupport = (doc.getObject("XY_Plane"), [""])
sketch19.MapMode = "FlatFace"
sketch19.AttachmentOffset = App.Placement(Vector(0, 0, -0.79375), App.Rotation())
sketch19.addGeometry(Part.Circle(Vector(0, -28.6, 0), Vector(0, 0, 1), 2), False)
sketch19.addConstraint(Sketcher.Constraint("PointOnObject", 0, 3, -2))
sketch19.addConstraint(Sketcher.Constraint("Diameter", 0, 4.0))
sketch19.addConstraint(Sketcher.Constraint("DistanceY", 0, 3, -1, 1, 28.575))
pocket7 = body.newObject("PartDesign::Pocket", "Pocket006")
pocket7.Profile = sketch19
pocket7.Length = 0.0254

# Sketch on XY plane
sketch20 = body.newObject("Sketcher::SketchObject", "Sketch019")
sketch20.AttachmentSupport = (doc.getObject("XY_Plane"), [""])
sketch20.MapMode = "FlatFace"
sketch20.AttachmentOffset = App.Placement(Vector(0, 0, 0.81915), App.Rotation())
sketch20.addGeometry(Part.Circle(Vector(0, -27.9, 0), Vector(0, 0, 1), 2), False)
sketch20.addGeometry(Part.Circle(Vector(0, -27.9, 0), Vector(0, 0, 1), 1.5), False)
sketch20.addConstraint(Sketcher.Constraint("Coincident", 1, 3, 0, 3))
sketch20.addConstraint(Sketcher.Constraint("PointOnObject", 0, 3, -2))
sketch20.addConstraint(Sketcher.Constraint("Diameter", 0, 4.0))
sketch20.addConstraint(Sketcher.Constraint("Diameter", 1, 3.048))
sketch20.addConstraint(Sketcher.Constraint("DistanceY", 0, 3, -1, 1, 27.9))
pad5 = body.newObject("PartDesign::Pad", "Pad004")
pad5.Profile = sketch20
pad5.Length = 0.0254
pad5.Reversed = True

# Sketch on XY plane
sketch21 = body.newObject("Sketcher::SketchObject", "Sketch020")
sketch21.AttachmentSupport = (doc.getObject("XY_Plane"), [""])
sketch21.MapMode = "FlatFace"
sketch21.AttachmentOffset = App.Placement(Vector(0, 0, -0.79375), App.Rotation())
sketch21.addGeometry(Part.Circle(Vector(0, -27.9, 0), Vector(0, 0, 1), 2), False)
sketch21.addGeometry(Part.Circle(Vector(0, -27.9, 0), Vector(0, 0, 1), 1.5), False)
sketch21.addGeometry(Part.Circle(Vector(-6, -27.5, 0), Vector(0, 0, 1), 2), False)
sketch21.addGeometry(Part.Circle(Vector(-6, -27.5, 0), Vector(0, 0, 1), 1.5), False)
sketch21.addGeometry(Part.Circle(Vector(6, -27.5, 0), Vector(0, 0, 1), 2), False)
sketch21.addGeometry(Part.Circle(Vector(6, -27.5, 0), Vector(0, 0, 1), 1.5), False)
sketch21.addConstraint(Sketcher.Constraint("Coincident", 1, 3, 0, 3))
sketch21.addConstraint(Sketcher.Constraint("Coincident", 3, 3, 2, 3))
sketch21.addConstraint(Sketcher.Constraint("Coincident", 5, 3, 4, 3))
sketch21.addConstraint(Sketcher.Constraint("Equal", 0, 2))
sketch21.addConstraint(Sketcher.Constraint("Equal", 1, 3))
sketch21.addConstraint(Sketcher.Constraint("Equal", 2, 4))
sketch21.addConstraint(Sketcher.Constraint("Equal", 3, 5))
sketch21.addConstraint(Sketcher.Constraint("Symmetric", 2, 3, 4, 3, -2))
sketch21.addConstraint(Sketcher.Constraint("PointOnObject", 0, 3, -2))
sketch21.addConstraint(Sketcher.Constraint("Diameter", 0, 4.0))
sketch21.addConstraint(Sketcher.Constraint("Diameter", 1, 3.048))
sketch21.addConstraint(Sketcher.Constraint("DistanceX", 2, 3, -1, 1, 6.0))
sketch21.addConstraint(Sketcher.Constraint("DistanceY", 0, 3, -1, 1, 27.9))
sketch21.addConstraint(Sketcher.Constraint("DistanceY", 2, 3, -1, 1, 27.5))
pad6 = body.newObject("PartDesign::Pad", "Pad005")
pad6.Profile = sketch21
pad6.Length = 0.02
pad6.Reversed = True

doc.recompute()
